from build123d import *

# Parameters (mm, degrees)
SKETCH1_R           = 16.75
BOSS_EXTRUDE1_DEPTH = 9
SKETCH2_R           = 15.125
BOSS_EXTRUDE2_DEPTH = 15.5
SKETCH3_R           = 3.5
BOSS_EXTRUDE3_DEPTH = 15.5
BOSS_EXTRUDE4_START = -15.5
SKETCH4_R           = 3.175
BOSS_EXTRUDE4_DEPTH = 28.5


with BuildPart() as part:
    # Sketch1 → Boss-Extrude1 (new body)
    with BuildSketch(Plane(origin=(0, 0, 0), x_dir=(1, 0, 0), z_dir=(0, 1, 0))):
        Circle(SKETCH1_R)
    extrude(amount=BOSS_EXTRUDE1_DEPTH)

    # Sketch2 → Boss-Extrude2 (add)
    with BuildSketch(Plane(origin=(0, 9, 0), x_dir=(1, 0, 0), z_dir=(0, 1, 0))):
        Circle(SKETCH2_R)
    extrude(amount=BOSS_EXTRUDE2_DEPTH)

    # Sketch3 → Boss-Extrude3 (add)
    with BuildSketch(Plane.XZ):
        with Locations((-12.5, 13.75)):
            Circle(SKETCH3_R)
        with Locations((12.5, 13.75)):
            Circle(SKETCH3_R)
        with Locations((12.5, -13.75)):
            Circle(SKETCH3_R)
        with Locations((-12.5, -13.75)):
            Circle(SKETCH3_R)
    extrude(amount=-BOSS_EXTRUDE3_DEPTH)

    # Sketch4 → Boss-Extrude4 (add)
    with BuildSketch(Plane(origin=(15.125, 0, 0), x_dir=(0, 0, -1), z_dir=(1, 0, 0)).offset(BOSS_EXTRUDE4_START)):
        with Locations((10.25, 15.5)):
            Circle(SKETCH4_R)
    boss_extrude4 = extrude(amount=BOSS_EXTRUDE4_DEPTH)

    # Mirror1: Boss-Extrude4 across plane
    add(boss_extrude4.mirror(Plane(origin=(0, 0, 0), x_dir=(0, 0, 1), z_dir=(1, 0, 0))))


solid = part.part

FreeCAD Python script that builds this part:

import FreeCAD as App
import Part
import Sketcher
Q = App.Units.Quantity

doc = App.newDocument("Part")
body = doc.addObject("PartDesign::Body", "Body")

# Sketch on XZ plane
sketch1 = body.newObject("Sketcher::SketchObject", "Sketch")
sketch1.AttachmentSupport = (doc.getObject("XZ_Plane"), [""])
sketch1.MapMode = "FlatFace"
sketch1.addGeometry(Part.Circle(App.Vector(0, 0, 0), App.Vector(0, 0, 1), 17), False)
sketch1.addConstraint(Sketcher.Constraint("Coincident", 0, 3, -1, 1))
sketch1.addConstraint(Sketcher.Constraint("Diameter", 0, Q("33.5 mm")))
pad1 = body.newObject("PartDesign::Pad", "Pad")
pad1.Profile = sketch1
pad1.Length = 9
pad1.Reversed = True

# Sketch on XZ plane
sketch2 = body.newObject("Sketcher::SketchObject", "Sketch001")
sketch2.AttachmentSupport = (doc.getObject("XZ_Plane"), [""])
sketch2.MapMode = "FlatFace"
sketch2.AttachmentOffset = App.Placement(App.Vector(0, 0, -9), App.Rotation())
sketch2.addGeometry(Part.Circle(App.Vector(0, 0, 0), App.Vector(0, 0, 1), 15), False)
sketch2.addConstraint(Sketcher.Constraint("Coincident", 0, 3, -1, 1))
sketch2.addConstraint(Sketcher.Constraint("Diameter", 0, Q("30.25 mm")))
pad2 = body.newObject("PartDesign::Pad", "Pad001")
pad2.Profile = sketch2
pad2.Length = 15.5
pad2.Reversed = True

# Sketch on XZ plane
sketch3 = body.newObject("Sketcher::SketchObject", "Sketch002")
sketch3.AttachmentSupport = (doc.getObject("XZ_Plane"), [""])
sketch3.MapMode = "FlatFace"
sketch3.addGeometry(Part.Circle(App.Vector(-12.5, 13.8, 0), App.Vector(0, 0, 1), 3.5), False)
sketch3.addGeometry(Part.Circle(App.Vector(12.5, 13.8, 0), App.Vector(0, 0, 1), 3.5), False)
sketch3.addGeometry(Part.Circle(App.Vector(12.5, -13.8, 0), App.Vector(0, 0, 1), 3.5), False)
sketch3.addGeometry(Part.Circle(App.Vector(-12.5, -13.8, 0), App.Vector(0, 0, 1), 3.5), False)
sketch3.addConstraint(Sketcher.Constraint("Equal", 0, 1))
sketch3.addConstraint(Sketcher.Constraint("Equal", 1, 2))
sketch3.addConstraint(Sketcher.Constraint("Equal", 2, 3))
sketch3.addConstraint(Sketcher.Constraint("Symmetric", 0, 3, 2, 3, -1, 1))
sketch3.addConstraint(Sketcher.Constraint("Symmetric", 1, 3, 3, 3, -1, 1))
sketch3.addConstraint(Sketcher.Constraint("Symmetric", 0, 3, 1, 3, -2))
sketch3.addConstraint(Sketcher.Constraint("Diameter", 0, Q("7 mm")))
sketch3.addConstraint(Sketcher.Constraint("DistanceX", 0, 3, 1, 3, Q("25 mm")))
sketch3.addConstraint(Sketcher.Constraint("DistanceY", 2, 3, 1, 3, Q("27.5 mm")))
pad3 = body.newObject("PartDesign::Pad", "Pad002")
pad3.Profile = sketch3
pad3.Length = 15.5
pad3.Reversed = True

# Sketch on YZ plane
sketch4 = body.newObject("Sketcher::SketchObject", "Sketch003")
sketch4.AttachmentSupport = (doc.getObject("YZ_Plane"), [""])
sketch4.MapMode = "FlatFace"
sketch4.AttachmentOffset = App.Placement(App.Vector(0, 0, -0.375), App.Rotation())
sketch4.addGeometry(Part.Circle(App.Vector(15.5, -10.2, 0), App.Vector(0, 0, 1), 3.2), False)
sketch4.addConstraint(Sketcher.Constraint("Diameter", 0, Q("6.35 mm")))
sketch4.addConstraint(Sketcher.Constraint("DistanceX", -1, 1, 0, 3, Q("15.5 mm")))
sketch4.addConstraint(Sketcher.Constraint("DistanceY", 0, 3, -1, 1, Q("10.25 mm")))
pad4 = body.newObject("PartDesign::Pad", "Pad003")
pad4.Profile = sketch4
pad4.Length = 28.5
doc.recompute()

mirrored = body.newObject("PartDesign::Mirrored", "Mirrored")
mirrored.Originals = [pad4]
mirrored.MirrorPlane = (doc.getObject("YZ_Plane"), [""])
body.Tip = mirrored

doc.recompute()
